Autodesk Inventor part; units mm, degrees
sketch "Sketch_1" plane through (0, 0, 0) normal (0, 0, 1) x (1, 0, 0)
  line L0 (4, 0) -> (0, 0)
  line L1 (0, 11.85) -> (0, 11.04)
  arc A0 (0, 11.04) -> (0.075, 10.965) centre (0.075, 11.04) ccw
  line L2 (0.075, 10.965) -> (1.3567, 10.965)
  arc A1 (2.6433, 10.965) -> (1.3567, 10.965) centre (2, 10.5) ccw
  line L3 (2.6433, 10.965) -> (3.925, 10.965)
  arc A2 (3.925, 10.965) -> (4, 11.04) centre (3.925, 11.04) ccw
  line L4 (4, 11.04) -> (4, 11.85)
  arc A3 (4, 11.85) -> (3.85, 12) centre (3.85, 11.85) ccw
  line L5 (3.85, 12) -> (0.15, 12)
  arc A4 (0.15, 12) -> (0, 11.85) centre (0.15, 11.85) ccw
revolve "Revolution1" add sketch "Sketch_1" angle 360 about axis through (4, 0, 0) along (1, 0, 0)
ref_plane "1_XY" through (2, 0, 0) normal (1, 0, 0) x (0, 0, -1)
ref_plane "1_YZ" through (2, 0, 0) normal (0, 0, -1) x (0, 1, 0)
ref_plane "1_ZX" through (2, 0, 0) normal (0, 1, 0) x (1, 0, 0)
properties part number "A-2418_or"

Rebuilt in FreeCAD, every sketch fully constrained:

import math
import FreeCAD as App
import Part
import Sketcher
from FreeCAD import Vector
Q = App.Units.Quantity

doc = App.newDocument("Part")
body = doc.addObject("PartDesign::Body", "Body")

# Sketch on XY plane
sketch1 = body.newObject("Sketcher::SketchObject", "Sketch")
sketch1.AttachmentSupport = (doc.getObject("XY_Plane"), [""])
sketch1.MapMode = "FlatFace"
sketch1.addGeometry([
    Part.ArcOfCircle(Part.Circle(Vector(0.15, 11.85, 0), Vector(0, 0, 1), 0.15), math.radians(90), math.radians(180)),  # 0
    Part.LineSegment(Vector(0, 11.85, 0), Vector(0, 11.04, 0)),  # 1
    Part.ArcOfCircle(Part.Circle(Vector(0.07, 11.04, 0), Vector(0, 0, 1), 0.07), math.radians(180), math.radians(270)),  # 2
    Part.LineSegment(Vector(0.07, 10.96, 0), Vector(1.36, 10.96, 0)),  # 3
    Part.ArcOfCircle(Part.Circle(Vector(2, 10.5, 0), Vector(0, 0, 1), 0.79), math.radians(36), math.radians(144)),  # 4
    Part.LineSegment(Vector(2.64, 10.96, 0), Vector(3.92, 10.96, 0)),  # 5
    Part.ArcOfCircle(Part.Circle(Vector(3.92, 11.04, 0), Vector(0, 0, 1), 0.07), math.radians(-90), math.radians(0)),  # 6
    Part.LineSegment(Vector(4, 11.04, 0), Vector(4, 11.85, 0)),  # 7
    Part.ArcOfCircle(Part.Circle(Vector(3.85, 11.85, 0), Vector(0, 0, 1), 0.15), math.radians(0), math.radians(90)),  # 8
    Part.LineSegment(Vector(3.85, 12, 0), Vector(0.15, 12, 0)),  # 9
], False)
sketch1.addConstraint([
    Sketcher.Constraint("Tangent", 0, 2, 1, 1),
    Sketcher.Constraint("Tangent", 1, 2, 2, 1),
    Sketcher.Constraint("Tangent", 2, 2, 3, 1),
    Sketcher.Constraint("Coincident", 3, 2, 4, 2),
    Sketcher.Constraint("Coincident", 4, 1, 5, 1),
    Sketcher.Constraint("Tangent", 5, 2, 6, 1),
    Sketcher.Constraint("Tangent", 6, 2, 7, 1),
    Sketcher.Constraint("Tangent", 7, 2, 8, 1),
    Sketcher.Constraint("Tangent", 8, 2, 9, 1),
    Sketcher.Constraint("Tangent", 9, 2, 0, 1),
    Sketcher.Constraint("Vertical", 1),
    Sketcher.Constraint("Horizontal", 3),
    Sketcher.Constraint("Horizontal", 5),
    Sketcher.Constraint("Vertical", 7),
    Sketcher.Constraint("Horizontal", 9),
    Sketcher.Constraint("Equal", 2, 6),
    Sketcher.Constraint("Equal", 0, 8),
    Sketcher.Constraint("PointOnObject", 0, 2, -2),
    Sketcher.Constraint("Horizontal", 2, 3, 6, 3),
    Sketcher.Constraint("Equal", 3, 5),
    Sketcher.Constraint("Radius", 0, Q("0.15 mm")),
    Sketcher.Constraint("DistanceX", 9, 2, 9, 1, Q("3.7 mm")),
    Sketcher.Constraint("DistanceY", -1, 1, 8, 2, Q("12 mm")),
    Sketcher.Constraint("Radius", 2, Q("0.075 mm")),
    Sketcher.Constraint("DistanceY", 1, 2, 1, 1, Q("0.81 mm")),
    Sketcher.Constraint("DistanceY", -1, 1, 4, 3, Q("10.5 mm")),
    Sketcher.Constraint("Radius", 4, Q("0.7938 mm")),
])
revolution = body.newObject("PartDesign::Revolution", "Revolution")
revolution.Profile = sketch1
revolution.ReferenceAxis = (sketch1, ["H_Axis"])
revolution.Angle = 360

doc.recompute()
